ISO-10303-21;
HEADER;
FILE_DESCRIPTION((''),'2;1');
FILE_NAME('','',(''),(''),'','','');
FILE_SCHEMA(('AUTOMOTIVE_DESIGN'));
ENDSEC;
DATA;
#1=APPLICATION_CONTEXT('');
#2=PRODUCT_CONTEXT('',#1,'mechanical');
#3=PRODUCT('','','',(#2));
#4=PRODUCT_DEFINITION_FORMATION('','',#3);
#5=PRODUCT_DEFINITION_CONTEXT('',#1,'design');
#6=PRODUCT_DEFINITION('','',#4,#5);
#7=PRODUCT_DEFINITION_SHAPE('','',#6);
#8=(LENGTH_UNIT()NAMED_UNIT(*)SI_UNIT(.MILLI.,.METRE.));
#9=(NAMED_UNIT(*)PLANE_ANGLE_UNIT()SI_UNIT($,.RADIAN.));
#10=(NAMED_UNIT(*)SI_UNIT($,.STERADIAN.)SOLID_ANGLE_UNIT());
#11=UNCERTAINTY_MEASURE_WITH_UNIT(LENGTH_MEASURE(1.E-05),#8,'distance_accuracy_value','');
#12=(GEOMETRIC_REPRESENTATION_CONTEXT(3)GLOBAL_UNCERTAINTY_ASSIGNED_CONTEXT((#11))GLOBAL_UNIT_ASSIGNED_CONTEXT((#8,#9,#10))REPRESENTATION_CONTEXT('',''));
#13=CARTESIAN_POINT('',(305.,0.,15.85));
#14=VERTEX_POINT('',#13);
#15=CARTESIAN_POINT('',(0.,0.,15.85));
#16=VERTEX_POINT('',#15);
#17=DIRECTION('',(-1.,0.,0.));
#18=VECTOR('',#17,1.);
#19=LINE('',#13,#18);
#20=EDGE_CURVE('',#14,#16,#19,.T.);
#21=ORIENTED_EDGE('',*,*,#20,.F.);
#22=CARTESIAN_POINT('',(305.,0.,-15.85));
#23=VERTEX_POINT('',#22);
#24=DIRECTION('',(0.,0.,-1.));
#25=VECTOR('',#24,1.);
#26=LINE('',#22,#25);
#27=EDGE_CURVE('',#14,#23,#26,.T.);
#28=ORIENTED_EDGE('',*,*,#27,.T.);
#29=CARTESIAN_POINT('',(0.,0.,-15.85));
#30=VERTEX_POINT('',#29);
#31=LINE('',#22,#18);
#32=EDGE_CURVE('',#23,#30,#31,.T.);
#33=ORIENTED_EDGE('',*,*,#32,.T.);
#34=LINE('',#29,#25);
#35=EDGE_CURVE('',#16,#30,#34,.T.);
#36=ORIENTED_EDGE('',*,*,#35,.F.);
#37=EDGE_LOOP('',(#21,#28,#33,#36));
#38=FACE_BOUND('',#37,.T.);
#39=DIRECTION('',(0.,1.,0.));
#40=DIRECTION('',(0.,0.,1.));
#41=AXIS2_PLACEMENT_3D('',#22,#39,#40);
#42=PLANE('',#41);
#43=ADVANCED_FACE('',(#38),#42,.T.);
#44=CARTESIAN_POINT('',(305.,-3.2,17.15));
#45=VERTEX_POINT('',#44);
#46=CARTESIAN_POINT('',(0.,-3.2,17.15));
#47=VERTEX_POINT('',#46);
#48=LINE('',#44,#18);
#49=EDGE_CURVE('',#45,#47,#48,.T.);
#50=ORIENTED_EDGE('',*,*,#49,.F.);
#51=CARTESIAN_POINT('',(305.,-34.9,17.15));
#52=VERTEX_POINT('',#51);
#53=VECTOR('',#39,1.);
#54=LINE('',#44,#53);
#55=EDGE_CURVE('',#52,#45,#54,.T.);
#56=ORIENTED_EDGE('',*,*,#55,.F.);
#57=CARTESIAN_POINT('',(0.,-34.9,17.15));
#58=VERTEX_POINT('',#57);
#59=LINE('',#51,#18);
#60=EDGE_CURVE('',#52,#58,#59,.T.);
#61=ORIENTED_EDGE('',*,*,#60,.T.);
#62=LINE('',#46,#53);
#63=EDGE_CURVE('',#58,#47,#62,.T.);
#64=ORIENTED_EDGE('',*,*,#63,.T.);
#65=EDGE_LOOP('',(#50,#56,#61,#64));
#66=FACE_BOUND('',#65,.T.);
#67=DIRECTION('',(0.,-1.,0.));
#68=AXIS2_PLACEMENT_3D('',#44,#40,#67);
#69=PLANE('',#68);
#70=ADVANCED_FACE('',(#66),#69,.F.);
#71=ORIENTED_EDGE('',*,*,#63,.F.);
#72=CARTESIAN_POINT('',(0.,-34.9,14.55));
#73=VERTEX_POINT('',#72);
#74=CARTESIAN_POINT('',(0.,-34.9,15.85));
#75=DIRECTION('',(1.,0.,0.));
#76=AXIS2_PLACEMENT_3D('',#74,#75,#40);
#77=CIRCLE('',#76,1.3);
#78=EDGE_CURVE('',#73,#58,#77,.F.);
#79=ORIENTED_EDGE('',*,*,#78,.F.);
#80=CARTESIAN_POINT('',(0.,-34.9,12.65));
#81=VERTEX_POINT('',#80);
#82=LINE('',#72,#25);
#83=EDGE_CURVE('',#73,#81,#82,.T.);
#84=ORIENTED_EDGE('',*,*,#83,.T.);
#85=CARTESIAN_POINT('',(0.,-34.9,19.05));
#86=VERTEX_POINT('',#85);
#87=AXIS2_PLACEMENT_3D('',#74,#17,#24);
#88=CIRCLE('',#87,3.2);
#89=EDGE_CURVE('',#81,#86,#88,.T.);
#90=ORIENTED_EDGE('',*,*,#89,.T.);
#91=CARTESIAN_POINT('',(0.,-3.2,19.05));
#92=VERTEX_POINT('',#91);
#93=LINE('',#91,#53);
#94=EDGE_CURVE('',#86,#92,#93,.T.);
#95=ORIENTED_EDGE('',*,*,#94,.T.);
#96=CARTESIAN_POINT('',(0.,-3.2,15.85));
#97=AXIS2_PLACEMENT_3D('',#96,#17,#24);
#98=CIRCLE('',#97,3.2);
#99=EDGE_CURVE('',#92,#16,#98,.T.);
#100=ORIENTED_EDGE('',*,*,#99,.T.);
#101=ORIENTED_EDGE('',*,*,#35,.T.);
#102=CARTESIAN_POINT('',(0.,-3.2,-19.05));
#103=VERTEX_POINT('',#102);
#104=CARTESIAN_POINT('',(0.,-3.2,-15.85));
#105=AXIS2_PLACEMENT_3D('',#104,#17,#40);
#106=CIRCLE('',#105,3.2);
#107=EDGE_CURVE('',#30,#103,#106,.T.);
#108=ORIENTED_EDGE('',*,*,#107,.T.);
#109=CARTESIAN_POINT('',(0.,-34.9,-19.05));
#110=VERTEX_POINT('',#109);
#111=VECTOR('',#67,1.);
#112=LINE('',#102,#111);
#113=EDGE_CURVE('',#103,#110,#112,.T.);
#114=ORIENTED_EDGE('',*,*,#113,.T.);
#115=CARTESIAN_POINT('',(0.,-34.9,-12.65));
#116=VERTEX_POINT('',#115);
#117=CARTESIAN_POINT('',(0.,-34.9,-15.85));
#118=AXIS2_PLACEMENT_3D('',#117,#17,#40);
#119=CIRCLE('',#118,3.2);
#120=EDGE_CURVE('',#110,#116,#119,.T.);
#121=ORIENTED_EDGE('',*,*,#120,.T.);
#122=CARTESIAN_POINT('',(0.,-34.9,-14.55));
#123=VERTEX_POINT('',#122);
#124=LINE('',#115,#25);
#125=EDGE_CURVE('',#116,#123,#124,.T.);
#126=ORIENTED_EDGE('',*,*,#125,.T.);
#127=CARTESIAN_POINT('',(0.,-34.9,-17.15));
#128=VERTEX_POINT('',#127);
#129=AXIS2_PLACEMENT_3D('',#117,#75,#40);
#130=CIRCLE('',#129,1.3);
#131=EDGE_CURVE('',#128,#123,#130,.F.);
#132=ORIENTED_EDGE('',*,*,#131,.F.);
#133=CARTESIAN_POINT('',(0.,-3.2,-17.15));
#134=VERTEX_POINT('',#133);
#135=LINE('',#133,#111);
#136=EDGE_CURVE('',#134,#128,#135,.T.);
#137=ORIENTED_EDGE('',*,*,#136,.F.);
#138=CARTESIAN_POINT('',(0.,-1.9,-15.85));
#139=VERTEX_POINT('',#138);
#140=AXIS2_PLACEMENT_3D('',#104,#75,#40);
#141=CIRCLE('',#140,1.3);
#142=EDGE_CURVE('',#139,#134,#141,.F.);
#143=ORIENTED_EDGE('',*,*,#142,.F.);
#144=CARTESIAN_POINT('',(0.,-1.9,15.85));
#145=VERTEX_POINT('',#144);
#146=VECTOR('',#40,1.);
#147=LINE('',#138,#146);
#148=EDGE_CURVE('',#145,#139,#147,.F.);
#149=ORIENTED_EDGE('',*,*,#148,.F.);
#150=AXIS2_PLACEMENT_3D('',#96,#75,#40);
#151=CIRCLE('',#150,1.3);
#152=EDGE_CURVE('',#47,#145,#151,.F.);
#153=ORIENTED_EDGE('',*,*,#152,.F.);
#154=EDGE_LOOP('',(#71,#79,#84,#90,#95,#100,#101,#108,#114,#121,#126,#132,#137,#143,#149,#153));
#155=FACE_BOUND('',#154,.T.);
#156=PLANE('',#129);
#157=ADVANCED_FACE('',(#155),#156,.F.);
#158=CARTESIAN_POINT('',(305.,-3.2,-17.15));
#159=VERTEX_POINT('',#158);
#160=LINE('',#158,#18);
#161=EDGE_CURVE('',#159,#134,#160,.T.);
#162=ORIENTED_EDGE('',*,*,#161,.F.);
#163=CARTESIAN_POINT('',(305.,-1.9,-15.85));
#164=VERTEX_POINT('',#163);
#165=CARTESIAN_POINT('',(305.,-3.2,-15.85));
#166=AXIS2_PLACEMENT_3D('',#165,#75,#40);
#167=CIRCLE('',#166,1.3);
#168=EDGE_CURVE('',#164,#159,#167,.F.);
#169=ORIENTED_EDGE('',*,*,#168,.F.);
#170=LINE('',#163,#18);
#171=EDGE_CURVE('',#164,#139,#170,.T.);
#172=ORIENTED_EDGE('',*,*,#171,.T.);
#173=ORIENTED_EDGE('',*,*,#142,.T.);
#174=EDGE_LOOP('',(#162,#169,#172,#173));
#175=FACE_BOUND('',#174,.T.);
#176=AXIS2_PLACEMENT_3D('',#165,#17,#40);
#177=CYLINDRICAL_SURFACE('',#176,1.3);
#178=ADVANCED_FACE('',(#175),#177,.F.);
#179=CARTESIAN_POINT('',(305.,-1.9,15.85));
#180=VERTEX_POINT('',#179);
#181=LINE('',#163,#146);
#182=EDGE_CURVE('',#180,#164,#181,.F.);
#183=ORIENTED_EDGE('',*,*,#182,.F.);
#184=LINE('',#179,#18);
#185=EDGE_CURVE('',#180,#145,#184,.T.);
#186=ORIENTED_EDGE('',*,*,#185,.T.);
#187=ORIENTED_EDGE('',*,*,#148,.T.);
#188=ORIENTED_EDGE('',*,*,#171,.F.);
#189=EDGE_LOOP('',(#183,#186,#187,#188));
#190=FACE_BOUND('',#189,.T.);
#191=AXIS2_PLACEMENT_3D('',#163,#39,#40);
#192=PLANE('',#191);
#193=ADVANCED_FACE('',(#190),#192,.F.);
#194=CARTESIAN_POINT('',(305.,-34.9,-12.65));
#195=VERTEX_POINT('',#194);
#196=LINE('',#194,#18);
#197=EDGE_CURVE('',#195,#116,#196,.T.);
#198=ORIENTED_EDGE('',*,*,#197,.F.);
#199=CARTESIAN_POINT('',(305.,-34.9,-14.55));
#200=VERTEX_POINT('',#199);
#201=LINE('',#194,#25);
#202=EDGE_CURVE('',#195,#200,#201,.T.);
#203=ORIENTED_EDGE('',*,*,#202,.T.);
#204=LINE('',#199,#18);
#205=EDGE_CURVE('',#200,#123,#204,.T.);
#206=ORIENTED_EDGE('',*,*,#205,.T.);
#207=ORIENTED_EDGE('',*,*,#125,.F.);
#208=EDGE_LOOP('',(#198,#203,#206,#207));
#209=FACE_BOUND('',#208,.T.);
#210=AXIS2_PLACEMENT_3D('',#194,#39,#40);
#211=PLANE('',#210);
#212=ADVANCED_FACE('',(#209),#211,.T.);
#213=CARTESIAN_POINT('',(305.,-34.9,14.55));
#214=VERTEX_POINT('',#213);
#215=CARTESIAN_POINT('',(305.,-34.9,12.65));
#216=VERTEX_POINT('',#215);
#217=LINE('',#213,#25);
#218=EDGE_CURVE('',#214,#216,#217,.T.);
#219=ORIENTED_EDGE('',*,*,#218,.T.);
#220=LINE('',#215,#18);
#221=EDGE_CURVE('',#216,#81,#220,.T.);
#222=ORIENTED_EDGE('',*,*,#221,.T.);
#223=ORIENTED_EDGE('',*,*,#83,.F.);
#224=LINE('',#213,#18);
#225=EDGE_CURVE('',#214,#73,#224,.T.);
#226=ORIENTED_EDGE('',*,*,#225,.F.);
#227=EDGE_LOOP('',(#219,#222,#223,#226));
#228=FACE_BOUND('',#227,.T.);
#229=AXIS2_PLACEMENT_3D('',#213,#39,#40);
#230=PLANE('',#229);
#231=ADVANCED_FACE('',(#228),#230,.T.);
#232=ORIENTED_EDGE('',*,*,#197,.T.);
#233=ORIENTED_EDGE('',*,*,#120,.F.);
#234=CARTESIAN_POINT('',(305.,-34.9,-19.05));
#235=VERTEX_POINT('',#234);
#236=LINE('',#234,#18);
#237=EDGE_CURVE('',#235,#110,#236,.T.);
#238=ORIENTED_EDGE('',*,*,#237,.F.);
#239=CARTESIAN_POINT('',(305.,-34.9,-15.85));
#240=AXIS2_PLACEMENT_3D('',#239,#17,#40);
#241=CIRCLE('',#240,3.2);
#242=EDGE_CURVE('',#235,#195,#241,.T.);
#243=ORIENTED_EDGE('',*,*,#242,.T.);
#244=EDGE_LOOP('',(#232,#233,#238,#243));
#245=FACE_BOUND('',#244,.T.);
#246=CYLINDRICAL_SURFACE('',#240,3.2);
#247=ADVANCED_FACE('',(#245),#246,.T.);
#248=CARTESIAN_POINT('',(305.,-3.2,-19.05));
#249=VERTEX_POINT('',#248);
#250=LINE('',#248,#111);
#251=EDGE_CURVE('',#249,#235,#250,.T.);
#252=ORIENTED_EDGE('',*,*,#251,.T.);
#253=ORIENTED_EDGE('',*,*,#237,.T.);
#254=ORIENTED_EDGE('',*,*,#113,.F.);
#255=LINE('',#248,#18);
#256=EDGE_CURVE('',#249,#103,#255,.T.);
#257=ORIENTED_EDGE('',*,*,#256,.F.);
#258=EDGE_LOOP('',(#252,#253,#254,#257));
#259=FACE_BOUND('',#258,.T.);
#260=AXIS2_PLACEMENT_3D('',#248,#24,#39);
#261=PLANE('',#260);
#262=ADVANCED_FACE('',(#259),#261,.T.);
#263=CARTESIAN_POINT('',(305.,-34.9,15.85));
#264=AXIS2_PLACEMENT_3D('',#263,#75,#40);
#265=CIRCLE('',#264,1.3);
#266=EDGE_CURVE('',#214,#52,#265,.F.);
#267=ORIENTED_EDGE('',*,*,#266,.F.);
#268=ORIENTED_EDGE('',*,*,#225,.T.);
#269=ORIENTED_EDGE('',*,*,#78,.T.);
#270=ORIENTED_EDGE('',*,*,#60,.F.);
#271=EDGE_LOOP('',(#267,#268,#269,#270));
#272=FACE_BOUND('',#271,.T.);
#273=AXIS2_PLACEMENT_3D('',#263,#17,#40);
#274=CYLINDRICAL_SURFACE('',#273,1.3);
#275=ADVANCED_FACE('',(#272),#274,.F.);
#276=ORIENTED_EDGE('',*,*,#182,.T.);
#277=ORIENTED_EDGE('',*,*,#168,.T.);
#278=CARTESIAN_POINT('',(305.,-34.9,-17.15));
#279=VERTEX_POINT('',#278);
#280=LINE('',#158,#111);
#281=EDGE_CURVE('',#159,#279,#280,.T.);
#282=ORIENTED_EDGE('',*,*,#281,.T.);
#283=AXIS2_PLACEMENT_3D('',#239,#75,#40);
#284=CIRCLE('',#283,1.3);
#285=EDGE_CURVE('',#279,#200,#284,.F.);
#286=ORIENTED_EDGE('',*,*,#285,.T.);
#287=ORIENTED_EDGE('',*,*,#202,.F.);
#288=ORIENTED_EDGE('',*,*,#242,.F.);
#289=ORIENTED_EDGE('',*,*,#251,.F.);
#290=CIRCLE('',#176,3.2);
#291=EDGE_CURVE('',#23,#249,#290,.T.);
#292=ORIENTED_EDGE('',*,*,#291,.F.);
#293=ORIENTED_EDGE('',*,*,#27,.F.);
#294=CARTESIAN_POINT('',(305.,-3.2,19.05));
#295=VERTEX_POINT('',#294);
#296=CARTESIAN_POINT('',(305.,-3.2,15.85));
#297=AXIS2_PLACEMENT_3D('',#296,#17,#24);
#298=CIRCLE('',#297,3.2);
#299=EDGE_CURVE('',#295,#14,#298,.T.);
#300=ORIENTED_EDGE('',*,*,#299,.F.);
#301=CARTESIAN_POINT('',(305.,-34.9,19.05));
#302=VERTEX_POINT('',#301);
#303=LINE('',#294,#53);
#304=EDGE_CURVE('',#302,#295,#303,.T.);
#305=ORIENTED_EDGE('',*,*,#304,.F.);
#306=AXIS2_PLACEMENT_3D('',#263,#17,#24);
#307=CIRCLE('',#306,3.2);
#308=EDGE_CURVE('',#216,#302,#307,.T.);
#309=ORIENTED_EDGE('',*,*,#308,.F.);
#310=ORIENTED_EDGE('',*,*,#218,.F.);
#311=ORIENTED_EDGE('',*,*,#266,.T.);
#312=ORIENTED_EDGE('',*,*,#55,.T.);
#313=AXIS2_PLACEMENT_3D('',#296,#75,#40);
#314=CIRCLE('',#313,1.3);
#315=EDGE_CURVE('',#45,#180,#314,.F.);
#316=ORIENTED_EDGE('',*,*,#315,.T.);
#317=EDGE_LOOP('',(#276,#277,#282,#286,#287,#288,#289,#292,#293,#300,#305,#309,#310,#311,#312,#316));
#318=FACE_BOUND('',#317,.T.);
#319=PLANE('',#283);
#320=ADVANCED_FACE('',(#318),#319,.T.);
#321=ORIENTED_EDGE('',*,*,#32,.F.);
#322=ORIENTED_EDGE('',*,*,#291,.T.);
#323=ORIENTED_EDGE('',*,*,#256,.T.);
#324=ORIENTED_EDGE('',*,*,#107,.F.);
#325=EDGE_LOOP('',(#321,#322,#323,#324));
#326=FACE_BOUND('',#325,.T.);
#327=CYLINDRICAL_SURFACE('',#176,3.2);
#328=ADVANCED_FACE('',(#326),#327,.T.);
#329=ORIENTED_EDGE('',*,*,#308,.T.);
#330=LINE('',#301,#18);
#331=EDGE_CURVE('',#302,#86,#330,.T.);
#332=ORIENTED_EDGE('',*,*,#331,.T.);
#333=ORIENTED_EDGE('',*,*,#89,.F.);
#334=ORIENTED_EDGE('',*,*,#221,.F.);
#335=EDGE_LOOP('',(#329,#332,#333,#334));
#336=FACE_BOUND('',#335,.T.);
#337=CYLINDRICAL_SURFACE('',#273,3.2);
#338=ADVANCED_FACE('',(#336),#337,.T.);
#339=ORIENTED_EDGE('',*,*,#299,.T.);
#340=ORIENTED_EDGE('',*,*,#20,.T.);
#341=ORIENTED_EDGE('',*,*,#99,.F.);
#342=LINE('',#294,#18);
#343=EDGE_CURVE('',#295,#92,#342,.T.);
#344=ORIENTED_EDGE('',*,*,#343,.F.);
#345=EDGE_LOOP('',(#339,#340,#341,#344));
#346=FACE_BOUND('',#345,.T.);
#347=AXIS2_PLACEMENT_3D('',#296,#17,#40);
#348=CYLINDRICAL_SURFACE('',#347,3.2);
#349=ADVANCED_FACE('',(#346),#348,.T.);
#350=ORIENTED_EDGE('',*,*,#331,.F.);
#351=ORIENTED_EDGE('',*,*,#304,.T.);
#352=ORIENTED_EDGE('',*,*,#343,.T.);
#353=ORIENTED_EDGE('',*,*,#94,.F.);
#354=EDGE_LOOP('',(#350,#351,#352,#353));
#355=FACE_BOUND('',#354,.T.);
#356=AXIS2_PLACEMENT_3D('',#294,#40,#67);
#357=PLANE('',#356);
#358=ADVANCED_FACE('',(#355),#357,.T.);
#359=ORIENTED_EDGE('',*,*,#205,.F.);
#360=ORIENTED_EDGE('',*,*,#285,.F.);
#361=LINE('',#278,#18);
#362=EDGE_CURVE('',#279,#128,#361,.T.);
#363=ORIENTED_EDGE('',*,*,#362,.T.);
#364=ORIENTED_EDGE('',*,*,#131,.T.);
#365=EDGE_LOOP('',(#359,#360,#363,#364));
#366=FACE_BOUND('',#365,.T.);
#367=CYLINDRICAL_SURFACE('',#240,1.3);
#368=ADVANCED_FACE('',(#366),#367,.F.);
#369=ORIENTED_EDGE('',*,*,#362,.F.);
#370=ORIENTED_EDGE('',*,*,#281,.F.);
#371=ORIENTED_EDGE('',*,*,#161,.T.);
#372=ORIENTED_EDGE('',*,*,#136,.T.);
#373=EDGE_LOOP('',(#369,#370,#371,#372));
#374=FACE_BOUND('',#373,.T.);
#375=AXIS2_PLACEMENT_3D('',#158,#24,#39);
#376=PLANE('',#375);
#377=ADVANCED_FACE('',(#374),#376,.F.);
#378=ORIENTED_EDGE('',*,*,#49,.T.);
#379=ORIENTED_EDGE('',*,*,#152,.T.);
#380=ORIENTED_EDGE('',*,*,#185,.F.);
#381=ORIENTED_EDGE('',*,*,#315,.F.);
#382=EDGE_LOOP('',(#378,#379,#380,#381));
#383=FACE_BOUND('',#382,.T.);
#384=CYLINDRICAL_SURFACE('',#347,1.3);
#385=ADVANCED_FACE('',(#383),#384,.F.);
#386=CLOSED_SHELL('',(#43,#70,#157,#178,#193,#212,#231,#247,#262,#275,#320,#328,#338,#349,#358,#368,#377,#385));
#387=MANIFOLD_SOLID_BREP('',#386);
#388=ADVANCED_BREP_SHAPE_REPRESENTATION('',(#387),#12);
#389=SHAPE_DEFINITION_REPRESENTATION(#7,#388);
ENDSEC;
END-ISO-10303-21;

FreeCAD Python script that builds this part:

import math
import FreeCAD as App
import Part
import Sketcher
from FreeCAD import Vector
Q = App.Units.Quantity

doc = App.newDocument("Part")
body = doc.addObject("PartDesign::Body", "Body")

sketch1 = body.newObject("Sketcher::SketchObject", "Sketch")
sketch1.AttachmentSupport = (doc.getObject("YZ_Plane"), [""])
sketch1.MapMode = "FlatFace"
sketch1.addGeometry(Part.ArcOfCircle(Part.Circle(Vector(-34.9, -15.8, 0), Vector(0, 0, 1), 3.2), math.radians(90), math.radians(270)), False)
sketch1.addGeometry(Part.LineSegment(Vector(-34.9, -19.1, 0), Vector(-3.2, -19.1, 0)), False)
sketch1.addGeometry(Part.ArcOfCircle(Part.Circle(Vector(-3.2, -15.9, 0), Vector(0, 0, 1), 3.2), math.radians(-90), math.radians(0)), False)
sketch1.addGeometry(Part.LineSegment(Vector(0, -15.8, 0), Vector(0, 15.8, 0)), False)
sketch1.addGeometry(Part.ArcOfCircle(Part.Circle(Vector(-3.2, 15.9, 0), Vector(0, 0, 1), 3.2), math.radians(0), math.radians(90)), False)
sketch1.addGeometry(Part.LineSegment(Vector(-3.2, 19.1, 0), Vector(-34.9, 19.1, 0)), False)
sketch1.addGeometry(Part.ArcOfCircle(Part.Circle(Vector(-34.9, 15.8, 0), Vector(0, 0, 1), 3.2), math.radians(90), math.radians(270)), False)
sketch1.addGeometry(Part.LineSegment(Vector(-34.9, 12.7, 0), Vector(-34.9, 14.6, 0)), False)
sketch1.addGeometry(Part.ArcOfCircle(Part.Circle(Vector(-34.9, 15.8, 0), Vector(0, 0, 1), 1.3), math.radians(90), math.radians(270)), False)
sketch1.addGeometry(Part.LineSegment(Vector(-34.9, 17.1, 0), Vector(-3.2, 17.1, 0)), False)
sketch1.addGeometry(Part.ArcOfCircle(Part.Circle(Vector(-3.2, 15.9, 0), Vector(0, 0, 1), 1.3), math.radians(0), math.radians(90)), False)
sketch1.addGeometry(Part.LineSegment(Vector(-1.9, 15.8, 0), Vector(-1.9, -15.8, 0)), False)
sketch1.addGeometry(Part.ArcOfCircle(Part.Circle(Vector(-3.2, -15.9, 0), Vector(0, 0, 1), 1.3), math.radians(-90), math.radians(0)), False)
sketch1.addGeometry(Part.LineSegment(Vector(-3.2, -17.1, 0), Vector(-34.9, -17.1, 0)), False)
sketch1.addGeometry(Part.ArcOfCircle(Part.Circle(Vector(-34.9, -15.8, 0), Vector(0, 0, 1), 1.3), math.radians(90), math.radians(270)), False)
sketch1.addGeometry(Part.LineSegment(Vector(-34.9, -14.6, 0), Vector(-34.9, -12.7, 0)), False)
sketch1.addConstraint(Sketcher.Constraint("Tangent", 0, 2, 1, 1))
sketch1.addConstraint(Sketcher.Constraint("Tangent", 1, 2, 2, 1))
sketch1.addConstraint(Sketcher.Constraint("Tangent", 2, 2, 3, 1))
sketch1.addConstraint(Sketcher.Constraint("Tangent", 3, 2, 4, 1))
sketch1.addConstraint(Sketcher.Constraint("Tangent", 4, 2, 5, 1))
sketch1.addConstraint(Sketcher.Constraint("Tangent", 5, 2, 6, 1))
sketch1.addConstraint(Sketcher.Constraint("Coincident", 6, 2, 7, 1))
sketch1.addConstraint(Sketcher.Constraint("Coincident", 7, 2, 8, 2))
sketch1.addConstraint(Sketcher.Constraint("Tangent", 8, 1, 9, 1))
sketch1.addConstraint(Sketcher.Constraint("Tangent", 9, 2, 10, 2))
sketch1.addConstraint(Sketcher.Constraint("Tangent", 10, 1, 11, 1))
sketch1.addConstraint(Sketcher.Constraint("Tangent", 11, 2, 12, 2))
sketch1.addConstraint(Sketcher.Constraint("Tangent", 12, 1, 13, 1))
sketch1.addConstraint(Sketcher.Constraint("Tangent", 13, 2, 14, 2))
sketch1.addConstraint(Sketcher.Constraint("Coincident", 14, 1, 15, 1))
sketch1.addConstraint(Sketcher.Constraint("Coincident", 15, 2, 0, 1))
sketch1.addConstraint(Sketcher.Constraint("Horizontal", 1))
sketch1.addConstraint(Sketcher.Constraint("Vertical", 3))
sketch1.addConstraint(Sketcher.Constraint("Horizontal", 5))
sketch1.addConstraint(Sketcher.Constraint("Vertical", 7))
sketch1.addConstraint(Sketcher.Constraint("Horizontal", 9))
sketch1.addConstraint(Sketcher.Constraint("Vertical", 11))
sketch1.addConstraint(Sketcher.Constraint("Horizontal", 13))
sketch1.addConstraint(Sketcher.Constraint("Vertical", 15))
sketch1.addConstraint(Sketcher.Constraint("Coincident", 8, 3, 6, 3))
sketch1.addConstraint(Sketcher.Constraint("Coincident", 10, 3, 4, 3))
sketch1.addConstraint(Sketcher.Constraint("Coincident", 12, 3, 2, 3))
sketch1.addConstraint(Sketcher.Constraint("Coincident", 14, 3, 0, 3))
sketch1.addConstraint(Sketcher.Constraint("Equal", 0, 2))
sketch1.addConstraint(Sketcher.Constraint("Equal", 2, 4))
sketch1.addConstraint(Sketcher.Constraint("Equal", 4, 6))
sketch1.addConstraint(Sketcher.Constraint("Symmetric", 2, 2, 3, 2, -1, 1))
sketch1.addConstraint(Sketcher.Constraint("Vertical", 0, 3, 6, 3))
sketch1.addConstraint(Sketcher.Constraint("Vertical", 5, 2, 6, 2))
sketch1.addConstraint(Sketcher.Constraint("Vertical", 13, 2, 14, 1))
sketch1.addConstraint(Sketcher.Constraint("Equal", 13, 3))
sketch1.addConstraint(Sketcher.Constraint("Radius", 0, Q("3.2 mm")))
sketch1.addConstraint(Sketcher.Constraint("Radius", 8, Q("1.3 mm")))
sketch1.addConstraint(Sketcher.Constraint("DistanceX", 1, 1, 1, 2, Q("31.7 mm")))
pad1 = body.newObject("PartDesign::Pad", "Pad")
pad1.Profile = sketch1
pad1.Length = 305

doc.recompute()
